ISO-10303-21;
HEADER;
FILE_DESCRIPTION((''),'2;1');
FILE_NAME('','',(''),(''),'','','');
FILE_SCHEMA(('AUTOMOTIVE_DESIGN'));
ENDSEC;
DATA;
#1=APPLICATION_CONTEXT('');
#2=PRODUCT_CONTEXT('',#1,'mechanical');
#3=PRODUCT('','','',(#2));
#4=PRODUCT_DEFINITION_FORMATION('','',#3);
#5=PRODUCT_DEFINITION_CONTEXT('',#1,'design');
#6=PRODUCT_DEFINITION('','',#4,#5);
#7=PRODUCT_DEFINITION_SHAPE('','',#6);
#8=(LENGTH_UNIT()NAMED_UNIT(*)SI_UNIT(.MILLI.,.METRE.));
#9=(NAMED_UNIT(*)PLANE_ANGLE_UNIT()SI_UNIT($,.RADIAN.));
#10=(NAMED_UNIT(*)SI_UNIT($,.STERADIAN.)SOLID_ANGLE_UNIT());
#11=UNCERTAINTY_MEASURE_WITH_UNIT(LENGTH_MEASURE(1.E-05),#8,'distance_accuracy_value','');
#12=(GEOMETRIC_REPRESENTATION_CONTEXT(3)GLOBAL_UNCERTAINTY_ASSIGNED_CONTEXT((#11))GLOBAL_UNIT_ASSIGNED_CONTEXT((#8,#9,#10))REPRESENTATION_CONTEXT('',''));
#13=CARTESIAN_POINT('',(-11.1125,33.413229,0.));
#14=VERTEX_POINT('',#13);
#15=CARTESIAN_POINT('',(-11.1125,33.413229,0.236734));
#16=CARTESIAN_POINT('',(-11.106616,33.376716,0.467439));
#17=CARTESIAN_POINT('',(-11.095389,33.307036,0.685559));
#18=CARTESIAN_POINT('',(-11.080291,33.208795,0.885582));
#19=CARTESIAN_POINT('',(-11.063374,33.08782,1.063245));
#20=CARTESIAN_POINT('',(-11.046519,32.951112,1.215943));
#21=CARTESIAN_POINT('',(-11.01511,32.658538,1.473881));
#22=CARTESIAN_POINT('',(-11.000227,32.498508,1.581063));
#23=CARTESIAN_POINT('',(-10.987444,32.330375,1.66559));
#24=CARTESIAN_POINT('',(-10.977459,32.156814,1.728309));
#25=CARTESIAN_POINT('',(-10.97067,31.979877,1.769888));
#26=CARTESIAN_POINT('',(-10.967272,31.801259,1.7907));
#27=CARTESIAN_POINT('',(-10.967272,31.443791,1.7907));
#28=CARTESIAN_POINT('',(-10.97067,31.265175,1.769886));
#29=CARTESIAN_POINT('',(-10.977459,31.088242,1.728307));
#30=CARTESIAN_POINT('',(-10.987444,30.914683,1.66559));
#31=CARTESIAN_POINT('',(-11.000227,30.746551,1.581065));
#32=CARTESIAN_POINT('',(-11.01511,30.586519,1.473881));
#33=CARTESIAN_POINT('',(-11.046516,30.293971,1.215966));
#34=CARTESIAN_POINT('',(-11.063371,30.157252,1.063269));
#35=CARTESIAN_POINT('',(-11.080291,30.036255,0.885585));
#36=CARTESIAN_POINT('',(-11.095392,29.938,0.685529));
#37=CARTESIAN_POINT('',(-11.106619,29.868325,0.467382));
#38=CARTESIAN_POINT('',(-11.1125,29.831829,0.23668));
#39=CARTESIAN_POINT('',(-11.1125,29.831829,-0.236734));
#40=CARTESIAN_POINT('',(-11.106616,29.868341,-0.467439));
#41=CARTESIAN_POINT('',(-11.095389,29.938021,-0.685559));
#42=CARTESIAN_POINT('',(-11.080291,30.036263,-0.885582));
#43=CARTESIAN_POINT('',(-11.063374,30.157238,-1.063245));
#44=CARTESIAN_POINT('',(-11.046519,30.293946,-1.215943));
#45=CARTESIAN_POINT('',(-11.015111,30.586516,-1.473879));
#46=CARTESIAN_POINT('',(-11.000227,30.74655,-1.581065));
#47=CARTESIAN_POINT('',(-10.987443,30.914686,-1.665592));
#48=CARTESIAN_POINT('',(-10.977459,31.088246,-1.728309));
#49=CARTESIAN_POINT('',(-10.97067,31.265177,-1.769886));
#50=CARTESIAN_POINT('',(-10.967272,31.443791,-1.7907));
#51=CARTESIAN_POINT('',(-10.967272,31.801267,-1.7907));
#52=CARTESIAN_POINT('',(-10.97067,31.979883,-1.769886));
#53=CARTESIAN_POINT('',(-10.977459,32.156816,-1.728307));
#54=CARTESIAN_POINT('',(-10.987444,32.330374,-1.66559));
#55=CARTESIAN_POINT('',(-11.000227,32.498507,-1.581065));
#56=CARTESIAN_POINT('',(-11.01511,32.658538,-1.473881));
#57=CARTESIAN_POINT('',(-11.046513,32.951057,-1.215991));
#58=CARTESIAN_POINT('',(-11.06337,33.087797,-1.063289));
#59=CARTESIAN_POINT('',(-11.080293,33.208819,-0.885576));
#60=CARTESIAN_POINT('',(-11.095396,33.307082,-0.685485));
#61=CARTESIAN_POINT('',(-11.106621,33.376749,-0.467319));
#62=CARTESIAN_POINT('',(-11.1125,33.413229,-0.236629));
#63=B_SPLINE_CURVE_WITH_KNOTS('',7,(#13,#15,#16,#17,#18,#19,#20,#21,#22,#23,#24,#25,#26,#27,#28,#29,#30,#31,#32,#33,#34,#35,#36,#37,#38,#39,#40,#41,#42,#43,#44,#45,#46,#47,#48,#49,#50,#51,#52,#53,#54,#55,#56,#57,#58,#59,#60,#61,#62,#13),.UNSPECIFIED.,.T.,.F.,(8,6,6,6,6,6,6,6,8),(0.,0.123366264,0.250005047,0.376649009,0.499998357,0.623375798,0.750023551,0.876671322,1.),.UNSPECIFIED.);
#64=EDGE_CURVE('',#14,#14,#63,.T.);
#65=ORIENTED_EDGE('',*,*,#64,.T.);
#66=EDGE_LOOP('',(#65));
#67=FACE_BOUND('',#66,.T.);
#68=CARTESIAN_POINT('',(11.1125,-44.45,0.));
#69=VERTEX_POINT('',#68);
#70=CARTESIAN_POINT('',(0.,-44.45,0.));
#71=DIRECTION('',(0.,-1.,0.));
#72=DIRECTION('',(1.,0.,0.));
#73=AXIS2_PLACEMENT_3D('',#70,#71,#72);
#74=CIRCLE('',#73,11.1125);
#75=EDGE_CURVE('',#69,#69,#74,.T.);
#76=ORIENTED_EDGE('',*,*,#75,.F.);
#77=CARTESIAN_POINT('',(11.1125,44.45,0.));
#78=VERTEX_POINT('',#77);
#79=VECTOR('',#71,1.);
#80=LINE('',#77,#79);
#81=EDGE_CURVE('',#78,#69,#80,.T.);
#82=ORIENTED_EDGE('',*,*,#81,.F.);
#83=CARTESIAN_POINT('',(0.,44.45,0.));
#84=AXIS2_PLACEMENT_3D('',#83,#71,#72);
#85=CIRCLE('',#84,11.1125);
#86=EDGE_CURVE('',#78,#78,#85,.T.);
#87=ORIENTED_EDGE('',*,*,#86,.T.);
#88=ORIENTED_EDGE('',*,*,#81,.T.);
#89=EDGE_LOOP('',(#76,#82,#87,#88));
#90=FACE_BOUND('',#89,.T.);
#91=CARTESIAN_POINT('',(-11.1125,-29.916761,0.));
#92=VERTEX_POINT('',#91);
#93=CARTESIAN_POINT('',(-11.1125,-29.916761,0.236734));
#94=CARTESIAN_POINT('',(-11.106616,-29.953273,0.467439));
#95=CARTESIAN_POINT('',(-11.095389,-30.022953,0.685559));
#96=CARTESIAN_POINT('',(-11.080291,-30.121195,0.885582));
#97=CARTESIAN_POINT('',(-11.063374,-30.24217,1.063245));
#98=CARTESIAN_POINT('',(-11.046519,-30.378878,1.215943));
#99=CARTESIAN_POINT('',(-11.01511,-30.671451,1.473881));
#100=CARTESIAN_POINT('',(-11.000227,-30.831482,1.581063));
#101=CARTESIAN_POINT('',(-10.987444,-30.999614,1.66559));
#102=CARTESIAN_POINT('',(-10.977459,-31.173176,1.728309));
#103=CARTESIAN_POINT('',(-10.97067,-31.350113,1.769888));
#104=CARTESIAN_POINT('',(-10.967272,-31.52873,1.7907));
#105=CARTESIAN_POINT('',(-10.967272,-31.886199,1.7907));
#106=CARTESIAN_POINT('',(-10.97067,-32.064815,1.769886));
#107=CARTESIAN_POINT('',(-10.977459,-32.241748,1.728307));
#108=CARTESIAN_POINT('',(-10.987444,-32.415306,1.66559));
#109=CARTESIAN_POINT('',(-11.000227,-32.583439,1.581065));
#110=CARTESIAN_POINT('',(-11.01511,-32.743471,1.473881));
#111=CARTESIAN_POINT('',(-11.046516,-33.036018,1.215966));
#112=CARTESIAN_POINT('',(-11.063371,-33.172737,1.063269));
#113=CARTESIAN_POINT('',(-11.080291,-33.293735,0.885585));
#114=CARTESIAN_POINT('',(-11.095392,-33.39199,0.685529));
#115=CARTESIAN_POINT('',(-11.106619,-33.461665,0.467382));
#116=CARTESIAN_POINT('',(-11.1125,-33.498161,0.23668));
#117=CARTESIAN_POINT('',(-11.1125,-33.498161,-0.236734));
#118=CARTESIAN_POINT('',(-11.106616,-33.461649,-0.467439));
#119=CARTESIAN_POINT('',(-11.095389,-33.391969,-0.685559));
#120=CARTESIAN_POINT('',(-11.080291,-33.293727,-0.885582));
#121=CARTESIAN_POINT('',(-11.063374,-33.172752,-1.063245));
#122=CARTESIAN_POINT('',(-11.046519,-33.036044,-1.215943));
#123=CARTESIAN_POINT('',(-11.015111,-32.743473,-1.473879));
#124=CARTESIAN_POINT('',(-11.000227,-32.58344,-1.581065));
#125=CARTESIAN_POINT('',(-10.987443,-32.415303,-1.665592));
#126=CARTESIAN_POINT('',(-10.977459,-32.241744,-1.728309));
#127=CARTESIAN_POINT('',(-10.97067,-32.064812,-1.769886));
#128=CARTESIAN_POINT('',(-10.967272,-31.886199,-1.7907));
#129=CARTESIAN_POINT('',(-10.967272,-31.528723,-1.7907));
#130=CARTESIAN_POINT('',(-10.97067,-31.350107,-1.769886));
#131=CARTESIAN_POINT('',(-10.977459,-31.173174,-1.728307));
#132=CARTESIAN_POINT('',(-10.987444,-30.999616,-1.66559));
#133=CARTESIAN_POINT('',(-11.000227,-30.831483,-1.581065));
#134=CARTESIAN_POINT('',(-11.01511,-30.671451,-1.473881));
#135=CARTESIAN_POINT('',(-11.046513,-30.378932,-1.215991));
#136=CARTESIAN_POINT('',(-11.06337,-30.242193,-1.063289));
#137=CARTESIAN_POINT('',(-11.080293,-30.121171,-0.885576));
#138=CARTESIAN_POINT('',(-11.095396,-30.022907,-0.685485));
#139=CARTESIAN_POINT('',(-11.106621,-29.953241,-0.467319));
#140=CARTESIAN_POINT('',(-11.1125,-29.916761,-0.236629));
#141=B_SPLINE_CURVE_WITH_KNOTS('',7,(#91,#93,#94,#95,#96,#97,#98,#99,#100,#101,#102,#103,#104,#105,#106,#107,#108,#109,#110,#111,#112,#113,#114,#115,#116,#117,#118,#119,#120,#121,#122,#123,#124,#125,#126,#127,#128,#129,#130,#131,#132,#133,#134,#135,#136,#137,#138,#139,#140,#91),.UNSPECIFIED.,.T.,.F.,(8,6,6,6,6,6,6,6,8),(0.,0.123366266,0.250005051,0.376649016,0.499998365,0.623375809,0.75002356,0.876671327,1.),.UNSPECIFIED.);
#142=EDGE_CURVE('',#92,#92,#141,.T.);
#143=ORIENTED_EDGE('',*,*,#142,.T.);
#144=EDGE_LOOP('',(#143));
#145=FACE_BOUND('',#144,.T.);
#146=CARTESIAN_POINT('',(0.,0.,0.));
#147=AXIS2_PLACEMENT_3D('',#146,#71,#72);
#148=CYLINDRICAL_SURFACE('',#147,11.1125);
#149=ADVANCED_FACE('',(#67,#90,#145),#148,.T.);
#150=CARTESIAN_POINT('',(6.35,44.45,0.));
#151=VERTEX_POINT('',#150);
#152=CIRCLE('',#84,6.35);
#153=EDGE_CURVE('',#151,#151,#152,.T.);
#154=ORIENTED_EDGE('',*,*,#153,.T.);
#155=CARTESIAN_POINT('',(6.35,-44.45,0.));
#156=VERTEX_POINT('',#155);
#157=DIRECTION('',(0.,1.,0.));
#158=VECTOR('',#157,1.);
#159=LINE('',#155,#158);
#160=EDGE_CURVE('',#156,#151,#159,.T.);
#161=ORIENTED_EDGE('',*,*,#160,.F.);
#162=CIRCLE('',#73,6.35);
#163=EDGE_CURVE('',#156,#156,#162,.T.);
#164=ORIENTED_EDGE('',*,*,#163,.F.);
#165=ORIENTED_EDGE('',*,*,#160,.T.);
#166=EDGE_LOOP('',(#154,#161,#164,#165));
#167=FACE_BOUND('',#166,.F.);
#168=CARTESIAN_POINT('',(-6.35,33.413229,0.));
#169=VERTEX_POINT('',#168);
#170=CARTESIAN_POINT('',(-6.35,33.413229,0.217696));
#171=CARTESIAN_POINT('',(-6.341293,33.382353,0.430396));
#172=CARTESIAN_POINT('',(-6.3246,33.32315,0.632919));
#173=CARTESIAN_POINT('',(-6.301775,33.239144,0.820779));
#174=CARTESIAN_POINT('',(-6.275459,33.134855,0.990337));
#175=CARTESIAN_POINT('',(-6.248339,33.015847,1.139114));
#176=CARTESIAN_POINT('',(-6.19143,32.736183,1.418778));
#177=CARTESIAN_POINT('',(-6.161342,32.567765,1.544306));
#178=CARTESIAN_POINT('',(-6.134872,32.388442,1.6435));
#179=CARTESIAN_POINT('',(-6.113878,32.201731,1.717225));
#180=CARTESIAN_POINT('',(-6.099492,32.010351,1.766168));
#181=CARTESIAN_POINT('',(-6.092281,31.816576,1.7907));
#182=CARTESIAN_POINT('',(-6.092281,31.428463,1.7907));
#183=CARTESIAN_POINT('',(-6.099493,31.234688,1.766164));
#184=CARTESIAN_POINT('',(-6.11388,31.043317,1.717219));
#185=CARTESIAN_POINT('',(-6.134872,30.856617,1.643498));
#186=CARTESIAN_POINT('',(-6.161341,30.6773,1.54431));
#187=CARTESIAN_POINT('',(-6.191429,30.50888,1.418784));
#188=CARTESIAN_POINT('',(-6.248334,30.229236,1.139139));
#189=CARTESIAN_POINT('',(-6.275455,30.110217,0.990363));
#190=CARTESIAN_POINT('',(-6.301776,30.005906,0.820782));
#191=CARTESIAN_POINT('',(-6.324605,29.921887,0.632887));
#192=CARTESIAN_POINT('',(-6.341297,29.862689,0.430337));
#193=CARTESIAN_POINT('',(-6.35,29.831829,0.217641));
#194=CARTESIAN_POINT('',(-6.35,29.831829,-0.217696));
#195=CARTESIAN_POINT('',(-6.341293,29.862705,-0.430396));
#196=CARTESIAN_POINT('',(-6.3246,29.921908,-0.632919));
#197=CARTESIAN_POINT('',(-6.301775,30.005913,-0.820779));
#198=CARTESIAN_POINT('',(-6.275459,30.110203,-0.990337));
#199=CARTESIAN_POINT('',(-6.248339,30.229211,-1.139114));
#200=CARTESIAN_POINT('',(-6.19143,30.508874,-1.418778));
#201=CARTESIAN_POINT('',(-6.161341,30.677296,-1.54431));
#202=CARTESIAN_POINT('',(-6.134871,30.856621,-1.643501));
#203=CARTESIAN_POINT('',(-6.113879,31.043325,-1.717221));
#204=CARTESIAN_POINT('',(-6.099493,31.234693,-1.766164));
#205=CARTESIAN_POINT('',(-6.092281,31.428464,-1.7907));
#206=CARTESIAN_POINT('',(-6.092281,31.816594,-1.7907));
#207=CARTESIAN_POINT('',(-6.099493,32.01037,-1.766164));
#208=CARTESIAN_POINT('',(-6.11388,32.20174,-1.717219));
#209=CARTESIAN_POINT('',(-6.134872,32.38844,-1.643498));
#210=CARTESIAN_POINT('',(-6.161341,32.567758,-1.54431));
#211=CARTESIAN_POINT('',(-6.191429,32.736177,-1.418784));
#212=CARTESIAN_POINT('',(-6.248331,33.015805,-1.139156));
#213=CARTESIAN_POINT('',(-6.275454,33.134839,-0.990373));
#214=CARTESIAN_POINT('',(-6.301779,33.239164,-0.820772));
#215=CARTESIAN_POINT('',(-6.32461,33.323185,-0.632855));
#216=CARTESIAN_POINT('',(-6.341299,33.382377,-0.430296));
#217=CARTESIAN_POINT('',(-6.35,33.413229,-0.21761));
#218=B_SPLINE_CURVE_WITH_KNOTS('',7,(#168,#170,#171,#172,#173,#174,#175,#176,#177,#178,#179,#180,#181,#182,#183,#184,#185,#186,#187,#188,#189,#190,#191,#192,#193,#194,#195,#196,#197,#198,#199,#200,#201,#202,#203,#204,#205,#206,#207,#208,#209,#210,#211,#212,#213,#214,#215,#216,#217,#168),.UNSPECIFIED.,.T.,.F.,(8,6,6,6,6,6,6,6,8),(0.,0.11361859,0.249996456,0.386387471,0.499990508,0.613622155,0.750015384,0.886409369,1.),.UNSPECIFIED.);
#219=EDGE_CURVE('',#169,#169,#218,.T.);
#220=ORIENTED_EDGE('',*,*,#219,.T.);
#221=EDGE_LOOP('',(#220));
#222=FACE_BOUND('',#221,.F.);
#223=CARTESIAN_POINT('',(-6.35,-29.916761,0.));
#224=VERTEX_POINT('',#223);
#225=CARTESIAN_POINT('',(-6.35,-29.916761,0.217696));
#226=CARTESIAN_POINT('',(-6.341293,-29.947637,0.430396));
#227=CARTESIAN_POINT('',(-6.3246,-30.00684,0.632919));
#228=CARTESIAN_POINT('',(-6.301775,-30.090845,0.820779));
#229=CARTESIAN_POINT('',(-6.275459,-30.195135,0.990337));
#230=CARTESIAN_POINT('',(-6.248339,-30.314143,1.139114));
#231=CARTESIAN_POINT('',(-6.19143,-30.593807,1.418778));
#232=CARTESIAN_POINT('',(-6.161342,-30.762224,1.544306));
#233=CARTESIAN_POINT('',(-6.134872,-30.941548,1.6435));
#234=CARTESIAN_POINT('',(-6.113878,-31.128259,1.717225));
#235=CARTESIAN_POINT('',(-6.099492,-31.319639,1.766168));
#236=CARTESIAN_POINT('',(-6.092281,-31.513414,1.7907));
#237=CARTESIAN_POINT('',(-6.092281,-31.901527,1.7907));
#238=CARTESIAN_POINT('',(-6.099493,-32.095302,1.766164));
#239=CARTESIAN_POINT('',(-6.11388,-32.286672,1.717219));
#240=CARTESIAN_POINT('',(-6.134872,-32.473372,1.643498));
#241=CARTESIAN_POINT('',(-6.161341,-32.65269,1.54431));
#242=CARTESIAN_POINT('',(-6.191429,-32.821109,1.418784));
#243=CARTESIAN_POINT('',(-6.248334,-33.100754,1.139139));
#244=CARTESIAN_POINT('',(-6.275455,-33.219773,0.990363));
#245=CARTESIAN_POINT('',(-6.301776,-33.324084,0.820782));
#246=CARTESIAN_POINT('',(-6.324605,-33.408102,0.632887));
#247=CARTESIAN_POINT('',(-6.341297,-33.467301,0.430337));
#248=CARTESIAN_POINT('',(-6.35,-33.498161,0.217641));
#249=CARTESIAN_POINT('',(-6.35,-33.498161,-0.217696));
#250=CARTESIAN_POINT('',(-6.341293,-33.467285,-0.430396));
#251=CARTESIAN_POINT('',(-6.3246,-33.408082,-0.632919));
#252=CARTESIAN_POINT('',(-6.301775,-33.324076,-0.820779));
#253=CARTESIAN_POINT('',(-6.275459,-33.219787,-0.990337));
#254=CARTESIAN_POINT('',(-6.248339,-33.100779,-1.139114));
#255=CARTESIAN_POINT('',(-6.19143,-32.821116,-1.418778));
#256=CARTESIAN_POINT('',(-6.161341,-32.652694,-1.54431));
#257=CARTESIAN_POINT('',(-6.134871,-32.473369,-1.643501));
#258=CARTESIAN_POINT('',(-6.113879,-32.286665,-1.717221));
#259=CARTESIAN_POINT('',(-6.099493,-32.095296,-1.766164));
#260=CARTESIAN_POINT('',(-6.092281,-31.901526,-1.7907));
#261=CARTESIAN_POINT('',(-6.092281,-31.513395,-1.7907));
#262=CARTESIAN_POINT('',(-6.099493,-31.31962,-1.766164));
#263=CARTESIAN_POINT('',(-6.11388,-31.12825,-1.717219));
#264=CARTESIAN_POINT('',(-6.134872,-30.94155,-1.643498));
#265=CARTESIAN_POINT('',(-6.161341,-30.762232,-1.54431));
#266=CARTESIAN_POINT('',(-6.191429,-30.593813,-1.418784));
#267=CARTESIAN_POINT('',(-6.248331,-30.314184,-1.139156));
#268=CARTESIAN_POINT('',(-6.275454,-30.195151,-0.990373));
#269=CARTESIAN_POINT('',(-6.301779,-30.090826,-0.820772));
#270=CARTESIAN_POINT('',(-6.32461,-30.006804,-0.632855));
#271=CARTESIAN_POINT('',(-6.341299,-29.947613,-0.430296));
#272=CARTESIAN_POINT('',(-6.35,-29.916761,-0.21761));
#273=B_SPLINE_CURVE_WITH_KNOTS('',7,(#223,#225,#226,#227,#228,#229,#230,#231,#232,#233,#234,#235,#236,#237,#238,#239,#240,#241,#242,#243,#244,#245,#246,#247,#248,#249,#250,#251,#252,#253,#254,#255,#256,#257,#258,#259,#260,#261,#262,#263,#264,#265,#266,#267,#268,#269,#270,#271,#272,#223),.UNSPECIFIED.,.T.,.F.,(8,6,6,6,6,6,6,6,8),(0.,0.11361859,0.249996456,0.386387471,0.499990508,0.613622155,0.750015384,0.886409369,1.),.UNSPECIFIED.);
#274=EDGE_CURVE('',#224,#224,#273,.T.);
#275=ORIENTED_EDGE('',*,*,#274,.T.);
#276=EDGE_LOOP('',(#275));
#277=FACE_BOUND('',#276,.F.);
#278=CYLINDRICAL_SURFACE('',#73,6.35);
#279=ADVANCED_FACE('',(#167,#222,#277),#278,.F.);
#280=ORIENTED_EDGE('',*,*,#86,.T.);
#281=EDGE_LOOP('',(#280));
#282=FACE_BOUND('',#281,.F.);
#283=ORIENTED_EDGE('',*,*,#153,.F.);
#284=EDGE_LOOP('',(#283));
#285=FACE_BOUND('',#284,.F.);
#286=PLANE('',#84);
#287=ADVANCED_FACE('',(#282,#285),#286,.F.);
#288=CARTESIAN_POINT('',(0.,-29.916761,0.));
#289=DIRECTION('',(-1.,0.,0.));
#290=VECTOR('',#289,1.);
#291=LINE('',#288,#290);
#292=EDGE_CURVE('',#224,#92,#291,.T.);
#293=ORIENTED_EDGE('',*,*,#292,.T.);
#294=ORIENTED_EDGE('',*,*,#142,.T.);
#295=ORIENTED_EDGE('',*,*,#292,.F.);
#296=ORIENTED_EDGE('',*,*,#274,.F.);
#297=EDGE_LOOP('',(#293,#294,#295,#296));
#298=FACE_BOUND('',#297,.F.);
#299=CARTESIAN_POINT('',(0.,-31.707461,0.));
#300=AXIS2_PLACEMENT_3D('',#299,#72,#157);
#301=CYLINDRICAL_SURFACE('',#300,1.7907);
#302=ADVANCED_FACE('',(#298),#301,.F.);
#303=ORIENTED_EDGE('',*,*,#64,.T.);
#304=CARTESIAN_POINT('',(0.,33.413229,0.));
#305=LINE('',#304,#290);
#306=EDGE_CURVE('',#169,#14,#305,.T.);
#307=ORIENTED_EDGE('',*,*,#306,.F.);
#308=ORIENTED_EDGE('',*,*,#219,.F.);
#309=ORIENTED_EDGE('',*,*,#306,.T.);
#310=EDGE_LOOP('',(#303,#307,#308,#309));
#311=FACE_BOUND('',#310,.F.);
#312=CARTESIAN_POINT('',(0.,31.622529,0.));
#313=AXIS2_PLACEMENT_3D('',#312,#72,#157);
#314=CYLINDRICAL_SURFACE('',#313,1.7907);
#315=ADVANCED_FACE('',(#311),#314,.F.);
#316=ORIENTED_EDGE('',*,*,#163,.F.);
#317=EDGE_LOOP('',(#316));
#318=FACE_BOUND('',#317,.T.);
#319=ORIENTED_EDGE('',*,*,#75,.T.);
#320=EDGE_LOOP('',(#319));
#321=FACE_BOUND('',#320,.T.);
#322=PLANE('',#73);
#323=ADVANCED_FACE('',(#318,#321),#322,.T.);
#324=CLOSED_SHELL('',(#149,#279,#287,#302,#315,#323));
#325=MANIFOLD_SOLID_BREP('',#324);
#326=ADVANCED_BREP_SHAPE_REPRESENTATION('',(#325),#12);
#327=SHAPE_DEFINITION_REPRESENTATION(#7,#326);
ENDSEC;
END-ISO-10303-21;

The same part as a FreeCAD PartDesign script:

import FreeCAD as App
import Part
import Sketcher
from FreeCAD import Vector
Q = App.Units.Quantity

doc = App.newDocument("Part")
body = doc.addObject("PartDesign::Body", "Body")

# Sketch on XZ plane
sketch1 = body.newObject("Sketcher::SketchObject", "Sketch")
sketch1.AttachmentSupport = (doc.getObject("XZ_Plane"), [""])
sketch1.MapMode = "FlatFace"
sketch1.addGeometry(Part.Circle(Vector(0, 0, 0), Vector(0, 0, 1), 11), False)
sketch1.addConstraint([
    Sketcher.Constraint("Coincident", 0, 3, -1, 1),
    Sketcher.Constraint("Diameter", 0, Q("0.875 in")),
])
pad1 = body.newObject("PartDesign::Pad", "Pad")
pad1.Profile = sketch1
pad1.Length = Q("3.5 in")
pad1.Midplane = True

# Sketch on XZ plane
sketch2 = body.newObject("Sketcher::SketchObject", "Sketch001")
sketch2.AttachmentSupport = (doc.getObject("XZ_Plane"), [""])
sketch2.MapMode = "FlatFace"
sketch2.AttachmentOffset = App.Placement(Vector(0, 0, 1.75 * 25.4), App.Rotation())
sketch2.addGeometry(Part.Circle(Vector(0, 0, 0), Vector(0, 0, 1), 6), False)
sketch2.addConstraint([
    Sketcher.Constraint("Coincident", 0, 3, -1, 1),
    Sketcher.Constraint("Diameter", 0, Q("0.5 in")),
])
pocket1 = body.newObject("PartDesign::Pocket", "Pocket")
pocket1.Profile = sketch2
pocket1.Length = Q("3.5 in")

# Sketch on YZ plane
sketch3 = body.newObject("Sketcher::SketchObject", "Sketch002")
sketch3.AttachmentSupport = (doc.getObject("YZ_Plane"), [""])
sketch3.MapMode = "FlatFace"
sketch3.addGeometry(Part.Circle(Vector(31.6, 0, 0), Vector(0, 0, 1), 1.8), False)
sketch3.addConstraint([
    Sketcher.Constraint("PointOnObject", 0, 3, -1),
    Sketcher.Constraint("Diameter", 0, Q("0.141 in")),
    Sketcher.Constraint("DistanceX", -1, 1, 0, 3, 31.622529),
])
pocket2 = body.newObject("PartDesign::Pocket", "Pocket001")
pocket2.Profile = sketch3
pocket2.Length = Q("1 in")

# Sketch on YZ plane
sketch4 = body.newObject("Sketcher::SketchObject", "Sketch003")
sketch4.AttachmentSupport = (doc.getObject("YZ_Plane"), [""])
sketch4.MapMode = "FlatFace"
sketch4.addGeometry(Part.Circle(Vector(-31.7, 0, 0), Vector(0, 0, 1), 1.8), False)
sketch4.addConstraint([
    Sketcher.Constraint("PointOnObject", 0, 3, -1),
    Sketcher.Constraint("Diameter", 0, Q("0.141 in")),
    Sketcher.Constraint("DistanceX", 0, 3, -1, 1, 31.707461),
])
pocket3 = body.newObject("PartDesign::Pocket", "Pocket002")
pocket3.Profile = sketch4
pocket3.Length = Q("1 in")

doc.recompute()
